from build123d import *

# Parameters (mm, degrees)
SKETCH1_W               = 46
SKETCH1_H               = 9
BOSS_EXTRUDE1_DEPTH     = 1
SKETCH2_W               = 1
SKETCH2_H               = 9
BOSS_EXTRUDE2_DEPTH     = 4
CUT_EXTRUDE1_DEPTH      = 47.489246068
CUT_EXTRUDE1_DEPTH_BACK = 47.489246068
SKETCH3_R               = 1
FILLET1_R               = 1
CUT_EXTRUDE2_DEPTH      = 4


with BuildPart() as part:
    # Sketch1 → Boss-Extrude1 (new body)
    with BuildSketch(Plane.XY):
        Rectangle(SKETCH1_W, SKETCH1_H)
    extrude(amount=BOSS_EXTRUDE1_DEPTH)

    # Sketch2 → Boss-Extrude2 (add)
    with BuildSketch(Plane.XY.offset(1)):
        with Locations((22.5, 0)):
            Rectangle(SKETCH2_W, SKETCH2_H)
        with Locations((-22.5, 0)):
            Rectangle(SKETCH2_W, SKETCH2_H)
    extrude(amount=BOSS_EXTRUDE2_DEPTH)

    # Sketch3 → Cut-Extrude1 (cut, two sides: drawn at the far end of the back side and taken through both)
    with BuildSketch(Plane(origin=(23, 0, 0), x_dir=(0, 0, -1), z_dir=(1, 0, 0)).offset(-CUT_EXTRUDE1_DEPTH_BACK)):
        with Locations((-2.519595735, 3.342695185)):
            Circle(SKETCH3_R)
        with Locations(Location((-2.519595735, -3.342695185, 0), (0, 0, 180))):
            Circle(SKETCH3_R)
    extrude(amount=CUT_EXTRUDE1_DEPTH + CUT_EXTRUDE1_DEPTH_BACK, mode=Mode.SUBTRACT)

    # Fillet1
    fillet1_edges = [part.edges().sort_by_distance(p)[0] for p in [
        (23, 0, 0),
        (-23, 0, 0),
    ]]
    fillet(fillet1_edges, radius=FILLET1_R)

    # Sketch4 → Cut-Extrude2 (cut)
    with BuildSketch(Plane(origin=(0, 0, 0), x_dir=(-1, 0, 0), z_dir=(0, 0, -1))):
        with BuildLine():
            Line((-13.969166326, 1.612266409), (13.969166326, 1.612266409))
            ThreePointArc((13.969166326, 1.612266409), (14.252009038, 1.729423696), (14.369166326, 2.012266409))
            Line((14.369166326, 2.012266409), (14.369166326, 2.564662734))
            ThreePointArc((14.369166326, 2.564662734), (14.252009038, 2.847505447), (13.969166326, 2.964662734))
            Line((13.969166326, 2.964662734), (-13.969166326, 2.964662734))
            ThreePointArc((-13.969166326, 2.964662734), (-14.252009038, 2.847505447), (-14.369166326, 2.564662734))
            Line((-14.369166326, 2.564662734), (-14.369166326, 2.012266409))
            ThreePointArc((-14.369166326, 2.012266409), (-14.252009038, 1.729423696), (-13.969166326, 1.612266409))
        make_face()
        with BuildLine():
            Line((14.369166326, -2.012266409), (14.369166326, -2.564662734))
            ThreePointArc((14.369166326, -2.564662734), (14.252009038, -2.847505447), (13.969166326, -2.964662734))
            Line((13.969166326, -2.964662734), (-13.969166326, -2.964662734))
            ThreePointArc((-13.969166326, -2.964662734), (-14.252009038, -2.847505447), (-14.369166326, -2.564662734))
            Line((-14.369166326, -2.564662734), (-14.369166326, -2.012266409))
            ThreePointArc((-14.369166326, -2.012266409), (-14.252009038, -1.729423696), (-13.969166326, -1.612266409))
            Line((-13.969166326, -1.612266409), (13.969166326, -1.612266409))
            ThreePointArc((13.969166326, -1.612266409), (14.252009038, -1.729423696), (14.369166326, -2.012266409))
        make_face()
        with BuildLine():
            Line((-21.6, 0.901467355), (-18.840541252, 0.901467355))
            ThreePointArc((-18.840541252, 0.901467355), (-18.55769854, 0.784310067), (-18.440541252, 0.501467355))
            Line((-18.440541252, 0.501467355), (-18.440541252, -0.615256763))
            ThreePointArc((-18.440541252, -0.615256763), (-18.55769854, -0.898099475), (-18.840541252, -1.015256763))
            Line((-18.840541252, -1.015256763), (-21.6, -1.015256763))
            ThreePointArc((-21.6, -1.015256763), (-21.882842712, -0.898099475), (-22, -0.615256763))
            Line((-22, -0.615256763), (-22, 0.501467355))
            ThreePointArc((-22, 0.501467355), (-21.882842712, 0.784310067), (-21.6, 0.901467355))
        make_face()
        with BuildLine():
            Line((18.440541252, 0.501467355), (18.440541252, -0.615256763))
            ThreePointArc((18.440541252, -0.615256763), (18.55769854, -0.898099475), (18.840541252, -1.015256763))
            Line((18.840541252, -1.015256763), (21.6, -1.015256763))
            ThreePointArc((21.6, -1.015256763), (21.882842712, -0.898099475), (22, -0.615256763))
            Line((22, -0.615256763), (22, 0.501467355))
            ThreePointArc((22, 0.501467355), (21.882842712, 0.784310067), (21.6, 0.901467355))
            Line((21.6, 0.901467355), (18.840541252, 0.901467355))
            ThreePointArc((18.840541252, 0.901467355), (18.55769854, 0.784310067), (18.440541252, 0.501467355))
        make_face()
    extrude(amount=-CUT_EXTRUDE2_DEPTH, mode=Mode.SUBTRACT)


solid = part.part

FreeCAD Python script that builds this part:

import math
import FreeCAD as App
import Part
import Sketcher


def edges_at(feature, points):
    """Names of the edges that pass closest to the given points."""
    edges = feature.Shape.Edges
    near = lambda p: min(range(len(edges)), key=lambda i: edges[i].distToShape(Part.Vertex(*p))[0])
    return sorted({f"Edge{near(p) + 1}" for p in points})

doc = App.newDocument("Part")
body = doc.addObject("PartDesign::Body", "Body")

# Sketch on XY plane
sketch1 = doc.addObject("Sketcher::SketchObject", "Sketch")
body.addObject(sketch1)
sketch1.AttachmentSupport = (doc.XY_Plane, [""])
sketch1.MapMode = "FlatFace"
sketch1.addGeometry([
    Part.LineSegment(App.Vector(-23, 4.5, 0), App.Vector(-23, -4.5, 0)),
    Part.LineSegment(App.Vector(-23, -4.5, 0), App.Vector(23, -4.5, 0)),
    Part.LineSegment(App.Vector(23, -4.5, 0), App.Vector(23, 4.5, 0)),
    Part.LineSegment(App.Vector(23, 4.5, 0), App.Vector(-23, 4.5, 0)),
], False)
sketch1.addConstraint([
    Sketcher.Constraint("Coincident", 0, 2, 1, 1),
    Sketcher.Constraint("Coincident", 1, 2, 2, 1),
    Sketcher.Constraint("Coincident", 2, 2, 3, 1),
    Sketcher.Constraint("Coincident", 3, 2, 0, 1),
    Sketcher.Constraint("Vertical", 0),
    Sketcher.Constraint("Horizontal", 1),
    Sketcher.Constraint("Vertical", 2),
    Sketcher.Constraint("Horizontal", 3),
    Sketcher.Constraint("Symmetric", 0, 2, 2, 2, -1, 1),
    Sketcher.Constraint("DistanceX", 1, 1, 1, 2, 46.0),
    Sketcher.Constraint("DistanceY", 0, 2, 0, 1, 9.0),
])
pad1 = doc.addObject("PartDesign::Pad", "Pad")
body.addObject(pad1)
pad1.Profile = sketch1
pad1.Length = 1

# Sketch on XY plane
sketch2 = doc.addObject("Sketcher::SketchObject", "Sketch001")
body.addObject(sketch2)
sketch2.AttachmentSupport = (doc.XY_Plane, [""])
sketch2.MapMode = "FlatFace"
sketch2.AttachmentOffset = App.Placement(App.Vector(0, 0, 1), App.Rotation())
sketch2.addGeometry([
    Part.LineSegment(App.Vector(22, 4.5, 0), App.Vector(22, -4.5, 0)),  # 0
    Part.LineSegment(App.Vector(22, -4.5, 0), App.Vector(23, -4.5, 0)),  # 1
    Part.LineSegment(App.Vector(23, -4.5, 0), App.Vector(23, 4.5, 0)),  # 2
    Part.LineSegment(App.Vector(23, 4.5, 0), App.Vector(22, 4.5, 0)),  # 3
    Part.LineSegment(App.Vector(-23, 4.5, 0), App.Vector(-23, -4.5, 0)),  # 4
    Part.LineSegment(App.Vector(-23, -4.5, 0), App.Vector(-22, -4.5, 0)),  # 5
    Part.LineSegment(App.Vector(-22, -4.5, 0), App.Vector(-22, 4.5, 0)),  # 6
    Part.LineSegment(App.Vector(-22, 4.5, 0), App.Vector(-23, 4.5, 0)),  # 7
], False)
sketch2.addConstraint([
    Sketcher.Constraint("Coincident", 0, 2, 1, 1),
    Sketcher.Constraint("Coincident", 1, 2, 2, 1),
    Sketcher.Constraint("Coincident", 2, 2, 3, 1),
    Sketcher.Constraint("Coincident", 3, 2, 0, 1),
    Sketcher.Constraint("Coincident", 4, 2, 5, 1),
    Sketcher.Constraint("Coincident", 5, 2, 6, 1),
    Sketcher.Constraint("Coincident", 6, 2, 7, 1),
    Sketcher.Constraint("Coincident", 7, 2, 4, 1),
    Sketcher.Constraint("Vertical", 0),
    Sketcher.Constraint("Horizontal", 1),
    Sketcher.Constraint("Vertical", 2),
    Sketcher.Constraint("Horizontal", 3),
    Sketcher.Constraint("Vertical", 4),
    Sketcher.Constraint("Horizontal", 5),
    Sketcher.Constraint("Vertical", 6),
    Sketcher.Constraint("Horizontal", 7),
    Sketcher.Constraint("Symmetric", 2, 2, 4, 2, -1, 1),
    Sketcher.Constraint("Symmetric", 0, 2, 6, 2, -1, 1),
    Sketcher.Constraint("Horizontal", 1, 2, 4, 2),
    Sketcher.Constraint("DistanceX", 1, 1, 1, 2, 1.0),
    Sketcher.Constraint("DistanceY", 0, 2, 0, 1, 9.0),
    Sketcher.Constraint("DistanceX", -1, 1, 0, 2, 22.0),
])
pad2 = doc.addObject("PartDesign::Pad", "Pad001")
body.addObject(pad2)
pad2.Profile = sketch2
pad2.Length = 4

# Sketch on YZ plane
sketch3 = doc.addObject("Sketcher::SketchObject", "Sketch002")
body.addObject(sketch3)
sketch3.AttachmentSupport = (doc.YZ_Plane, [""])
sketch3.MapMode = "FlatFace"
sketch3.AttachmentOffset = App.Placement(App.Vector(0, 0, 23), App.Rotation())
sketch3.addGeometry([
    Part.Circle(App.Vector(3.342695, 2.519596, 0), App.Vector(0, 0, 1), 1),
    Part.Circle(App.Vector(-3.342695, 2.519596, 0), App.Vector(0, 0, 1), 1),
], False)
sketch3.addConstraint([
    Sketcher.Constraint("Equal", 0, 1),
    Sketcher.Constraint("Symmetric", 0, 3, 1, 3, -2),
    Sketcher.Constraint("Diameter", 0, 2.0),
    Sketcher.Constraint("DistanceX", 1, 3, 0, 3, 6.68539),
    Sketcher.Constraint("DistanceY", -1, 1, 0, 3, 2.519596),
])
pocket1 = doc.addObject("PartDesign::Pocket", "Pocket")
body.addObject(pocket1)
pocket1.Profile = sketch3
pocket1.Type = "ThroughAll"
pocket1.Midplane = True
doc.recompute()

fillet = doc.addObject("PartDesign::Fillet", "Fillet")
body.addObject(fillet)
fillet.Base = (pocket1, edges_at(pocket1, [(23, 0, 0), (-23, 0, 0)]))
fillet.Radius = 1

# Sketch on XY plane
sketch4 = doc.addObject("Sketcher::SketchObject", "Sketch003")
body.addObject(sketch4)
sketch4.AttachmentSupport = (doc.XY_Plane, [""])
sketch4.MapMode = "FlatFace"
sketch4.addGeometry([
    Part.LineSegment(App.Vector(13.969166, 1.612266, 0), App.Vector(-13.969166, 1.612266, 0)),  # 0
    Part.ArcOfCircle(Part.Circle(App.Vector(-13.969166, 2.012266, 0), App.Vector(0, 0, 1), 0.4), math.radians(180), math.radians(270)),  # 1
    Part.LineSegment(App.Vector(-14.369166, 2.012266, 0), App.Vector(-14.369166, 2.564663, 0)),  # 2
    Part.ArcOfCircle(Part.Circle(App.Vector(-13.969166, 2.564663, 0), App.Vector(0, 0, 1), 0.4), math.radians(90), math.radians(180)),  # 3
    Part.LineSegment(App.Vector(-13.969166, 2.964663, 0), App.Vector(13.969166, 2.964663, 0)),  # 4
    Part.ArcOfCircle(Part.Circle(App.Vector(13.969166, 2.564663, 0), App.Vector(0, 0, 1), 0.4), math.radians(0), math.radians(90)),  # 5
    Part.LineSegment(App.Vector(14.369166, 2.564663, 0), App.Vector(14.369166, 2.012266, 0)),  # 6
    Part.ArcOfCircle(Part.Circle(App.Vector(13.969166, 2.012266, 0), App.Vector(0, 0, 1), 0.4), math.radians(-90), math.radians(0)),  # 7
    Part.LineSegment(App.Vector(-14.369166, -2.564663, 0), App.Vector(-14.369166, -2.012266, 0)),  # 8
    Part.ArcOfCircle(Part.Circle(App.Vector(-13.969166, -2.012266, 0), App.Vector(0, 0, 1), 0.4), math.radians(90), math.radians(180)),  # 9
    Part.LineSegment(App.Vector(-13.969166, -1.612266, 0), App.Vector(13.969166, -1.612266, 0)),  # 10
    Part.ArcOfCircle(Part.Circle(App.Vector(13.969166, -2.012266, 0), App.Vector(0, 0, 1), 0.4), math.radians(0), math.radians(90)),  # 11
    Part.LineSegment(App.Vector(14.369166, -2.012266, 0), App.Vector(14.369166, -2.564663, 0)),  # 12
    Part.ArcOfCircle(Part.Circle(App.Vector(13.969166, -2.564663, 0), App.Vector(0, 0, 1), 0.4), math.radians(-90), math.radians(0)),  # 13
    Part.LineSegment(App.Vector(13.969166, -2.964663, 0), App.Vector(-13.969166, -2.964663, 0)),  # 14
    Part.ArcOfCircle(Part.Circle(App.Vector(-13.969166, -2.564663, 0), App.Vector(0, 0, 1), 0.4), math.radians(180), math.radians(270)),  # 15
    Part.LineSegment(App.Vector(18.840541, 0.901467, 0), App.Vector(21.6, 0.901467, 0)),  # 16
    Part.ArcOfCircle(Part.Circle(App.Vector(21.6, 0.501467, 0), App.Vector(0, 0, 1), 0.4), math.radians(0), math.radians(90)),  # 17
    Part.LineSegment(App.Vector(22, 0.501467, 0), App.Vector(22, -0.615257, 0)),  # 18
    Part.ArcOfCircle(Part.Circle(App.Vector(21.6, -0.615257, 0), App.Vector(0, 0, 1), 0.4), math.radians(-90), math.radians(0)),  # 19
    Part.LineSegment(App.Vector(21.6, -1.015257, 0), App.Vector(18.840541, -1.015257, 0)),  # 20
    Part.ArcOfCircle(Part.Circle(App.Vector(18.840541, -0.615257, 0), App.Vector(0, 0, 1), 0.4), math.radians(-180), math.radians(-90)),  # 21
    Part.LineSegment(App.Vector(18.440541, -0.615257, 0), App.Vector(18.440541, 0.501467, 0)),  # 22
    Part.ArcOfCircle(Part.Circle(App.Vector(18.840541, 0.501467, 0), App.Vector(0, 0, 1), 0.4), math.radians(90), math.radians(180)),  # 23
    Part.LineSegment(App.Vector(-18.440541, 0.501467, 0), App.Vector(-18.440541, -0.615257, 0)),  # 24
    Part.ArcOfCircle(Part.Circle(App.Vector(-18.840541, -0.615257, 0), App.Vector(0, 0, 1), 0.4), math.radians(-90), math.radians(0)),  # 25
    Part.LineSegment(App.Vector(-18.840541, -1.015257, 0), App.Vector(-21.6, -1.015257, 0)),  # 26
    Part.ArcOfCircle(Part.Circle(App.Vector(-21.6, -0.615257, 0), App.Vector(0, 0, 1), 0.4), math.radians(-180), math.radians(-90)),  # 27
    Part.LineSegment(App.Vector(-22, -0.615257, 0), App.Vector(-22, 0.501467, 0)),  # 28
    Part.ArcOfCircle(Part.Circle(App.Vector(-21.6, 0.501467, 0), App.Vector(0, 0, 1), 0.4), math.radians(90), math.radians(180)),  # 29
    Part.LineSegment(App.Vector(-21.6, 0.901467, 0), App.Vector(-18.840541, 0.901467, 0)),  # 30
    Part.ArcOfCircle(Part.Circle(App.Vector(-18.840541, 0.501467, 0), App.Vector(0, 0, 1), 0.4), math.radians(0), math.radians(90)),  # 31
], False)
sketch4.addConstraint([
    Sketcher.Constraint("Tangent", 0, 2, 1, 2),
    Sketcher.Constraint("Tangent", 1, 1, 2, 1),
    Sketcher.Constraint("Tangent", 2, 2, 3, 2),
    Sketcher.Constraint("Tangent", 3, 1, 4, 1),
    Sketcher.Constraint("Tangent", 4, 2, 5, 2),
    Sketcher.Constraint("Tangent", 5, 1, 6, 1),
    Sketcher.Constraint("Tangent", 6, 2, 7, 2),
    Sketcher.Constraint("Tangent", 7, 1, 0, 1),
    Sketcher.Constraint("Tangent", 8, 2, 9, 2),
    Sketcher.Constraint("Tangent", 9, 1, 10, 1),
    Sketcher.Constraint("Tangent", 10, 2, 11, 2),
    Sketcher.Constraint("Tangent", 11, 1, 12, 1),
    Sketcher.Constraint("Tangent", 12, 2, 13, 2),
    Sketcher.Constraint("Tangent", 13, 1, 14, 1),
    Sketcher.Constraint("Tangent", 14, 2, 15, 2),
    Sketcher.Constraint("Tangent", 15, 1, 8, 1),
    Sketcher.Constraint("Tangent", 16, 2, 17, 2),
    Sketcher.Constraint("Tangent", 17, 1, 18, 1),
    Sketcher.Constraint("Tangent", 18, 2, 19, 2),
    Sketcher.Constraint("Tangent", 19, 1, 20, 1),
    Sketcher.Constraint("Tangent", 20, 2, 21, 2),
    Sketcher.Constraint("Tangent", 21, 1, 22, 1),
    Sketcher.Constraint("Tangent", 22, 2, 23, 2),
    Sketcher.Constraint("Tangent", 23, 1, 16, 1),
    Sketcher.Constraint("Tangent", 24, 2, 25, 2),
    Sketcher.Constraint("Tangent", 25, 1, 26, 1),
    Sketcher.Constraint("Tangent", 26, 2, 27, 2),
    Sketcher.Constraint("Tangent", 27, 1, 28, 1),
    Sketcher.Constraint("Tangent", 28, 2, 29, 2),
    Sketcher.Constraint("Tangent", 29, 1, 30, 1),
    Sketcher.Constraint("Tangent", 30, 2, 31, 2),
    Sketcher.Constraint("Tangent", 31, 1, 24, 1),
    Sketcher.Constraint("Horizontal", 0),
    Sketcher.Constraint("Vertical", 2),
    Sketcher.Constraint("Horizontal", 4),
    Sketcher.Constraint("Vertical", 6),
    Sketcher.Constraint("Vertical", 8),
    Sketcher.Constraint("Horizontal", 10),
    Sketcher.Constraint("Vertical", 12),
    Sketcher.Constraint("Horizontal", 14),
    Sketcher.Constraint("Horizontal", 16),
    Sketcher.Constraint("Vertical", 18),
    Sketcher.Constraint("Horizontal", 20),
    Sketcher.Constraint("Vertical", 22),
    Sketcher.Constraint("Vertical", 24),
    Sketcher.Constraint("Horizontal", 26),
    Sketcher.Constraint("Vertical", 28),
    Sketcher.Constraint("Horizontal", 30),
    Sketcher.Constraint("Equal", 1, 3),
    Sketcher.Constraint("Equal", 3, 5),
    Sketcher.Constraint("Equal", 5, 7),
    Sketcher.Constraint("Equal", 7, 9),
    Sketcher.Constraint("Equal", 9, 11),
    Sketcher.Constraint("Equal", 11, 13),
    Sketcher.Constraint("Equal", 13, 15),
    Sketcher.Constraint("Equal", 15, 17),
    Sketcher.Constraint("Equal", 17, 19),
    Sketcher.Constraint("Equal", 19, 21),
    Sketcher.Constraint("Equal", 21, 23),
    Sketcher.Constraint("Equal", 23, 25),
    Sketcher.Constraint("Equal", 25, 27),
    Sketcher.Constraint("Equal", 27, 29),
    Sketcher.Constraint("Equal", 29, 31),
    Sketcher.Constraint("Symmetric", 7, 3, 9, 3, -1, 1),
    Sketcher.Constraint("Symmetric", 3, 3, 13, 3, -1, 1),
    Sketcher.Constraint("Symmetric", 21, 3, 25, 3, -2),
    Sketcher.Constraint("Symmetric", 17, 3, 29, 3, -2),
    Sketcher.Constraint("Vertical", 3, 3, 9, 3),
    Sketcher.Constraint("Radius", 1, 0.4),
    Sketcher.Constraint("DistanceX", -1, 1, 17, 1, 22.0),
    Sketcher.Constraint("DistanceX", 16, 1, 16, 2, 2.759459),
    Sketcher.Constraint("DistanceY", 17, 3, 7, 3, 1.510799),
    Sketcher.Constraint("DistanceX", 0, 2, 0, 1, 27.938333),
    Sketcher.Constraint("DistanceY", 2, 1, 2, 2, 0.552396),
    Sketcher.Constraint("DistanceY", 18, 2, 18, 1, 1.116724),
    Sketcher.Constraint("DistanceY", 9, 3, 3, 3, 4.576929),
])
pocket2 = doc.addObject("PartDesign::Pocket", "Pocket001")
body.addObject(pocket2)
pocket2.Profile = sketch4
pocket2.Length = 4
pocket2.Reversed = True

doc.recompute()
